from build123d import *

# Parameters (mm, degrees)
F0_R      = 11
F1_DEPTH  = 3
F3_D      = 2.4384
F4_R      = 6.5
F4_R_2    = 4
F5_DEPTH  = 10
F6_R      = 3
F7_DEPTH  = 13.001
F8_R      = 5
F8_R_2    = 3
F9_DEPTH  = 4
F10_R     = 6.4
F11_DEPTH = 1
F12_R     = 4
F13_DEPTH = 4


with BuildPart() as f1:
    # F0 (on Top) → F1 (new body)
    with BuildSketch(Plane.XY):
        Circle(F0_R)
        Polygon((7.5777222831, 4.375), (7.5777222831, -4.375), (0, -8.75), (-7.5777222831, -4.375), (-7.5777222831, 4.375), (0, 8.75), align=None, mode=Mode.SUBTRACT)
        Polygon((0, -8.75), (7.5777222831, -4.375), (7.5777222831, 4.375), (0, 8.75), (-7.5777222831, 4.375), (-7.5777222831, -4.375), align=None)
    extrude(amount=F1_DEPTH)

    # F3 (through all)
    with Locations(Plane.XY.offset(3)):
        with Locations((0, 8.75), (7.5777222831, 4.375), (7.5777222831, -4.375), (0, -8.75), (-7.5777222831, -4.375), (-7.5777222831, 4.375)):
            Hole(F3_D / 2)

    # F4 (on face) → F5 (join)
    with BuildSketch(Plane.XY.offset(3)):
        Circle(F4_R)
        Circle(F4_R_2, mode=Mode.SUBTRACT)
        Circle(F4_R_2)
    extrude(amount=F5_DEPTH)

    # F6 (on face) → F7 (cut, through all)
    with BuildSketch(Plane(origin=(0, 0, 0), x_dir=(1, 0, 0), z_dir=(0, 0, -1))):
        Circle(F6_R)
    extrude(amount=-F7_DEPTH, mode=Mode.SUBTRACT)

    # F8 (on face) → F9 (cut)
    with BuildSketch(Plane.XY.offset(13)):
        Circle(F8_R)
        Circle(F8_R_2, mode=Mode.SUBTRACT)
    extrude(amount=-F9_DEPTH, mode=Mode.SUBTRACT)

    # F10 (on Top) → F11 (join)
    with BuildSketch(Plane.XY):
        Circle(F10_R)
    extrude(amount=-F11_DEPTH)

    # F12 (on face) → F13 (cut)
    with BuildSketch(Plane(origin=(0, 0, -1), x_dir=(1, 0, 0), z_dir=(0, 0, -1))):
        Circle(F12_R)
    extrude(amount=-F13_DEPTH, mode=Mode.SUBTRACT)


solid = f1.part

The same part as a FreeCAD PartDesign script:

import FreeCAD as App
import Part
import Sketcher
from FreeCAD import Vector

doc = App.newDocument("Part")
params = doc.addObject("Spreadsheet::Sheet", "Params")
for row, (alias, value) in enumerate([
    ("sketch1_diameter", "22 mm"),
    ("pad1_length", "3 mm"),
    ("hole_diameter", "2.4384 mm"),
    ("sketch3_diameter", "13 mm"),
    ("pad2_length", "10 mm"),
    ("sketch4_diameter", "6 mm"),
    ("sketch5_diameter", "10 mm"),
    ("sketch5_diameter2", "6 mm"),
    ("pocket2_length", "4 mm"),
    ("sketch6_diameter", "12.8 mm"),
    ("pad3_length", "1 mm"),
    ("sketch7_diameter", "8 mm"),
    ("pocket3_length", "4 mm"),
], start=1):
    params.set(f"A{row}", alias)
    params.set(f"B{row}", "=" + value)
    params.setAlias(f"B{row}", alias)

body = doc.addObject("PartDesign::Body", "Body")

# Sketch on XY plane
sketch1 = body.newObject("Sketcher::SketchObject", "Sketch")
sketch1.AttachmentSupport = (doc.getObject("XY_Plane"), [""])
sketch1.MapMode = "FlatFace"
sketch1.addGeometry(Part.Circle(Vector(0, 0, 0), Vector(0, 0, 1), 11), False)
sketch1.addConstraint([
    Sketcher.Constraint("Coincident", 0, 3, -1, 1),
    Sketcher.Constraint("Diameter", 0, 22.0),
])
sketch1.setExpression("Constraints[1]", "Params.sketch1_diameter")
pad1 = body.newObject("PartDesign::Pad", "Pad")
pad1.Profile = sketch1
pad1.setExpression("Length", "Params.pad1_length")

# Sketch on XY plane
sketch2 = body.newObject("Sketcher::SketchObject", "Sketch001")
sketch2.AttachmentSupport = (doc.getObject("XY_Plane"), [""])
sketch2.MapMode = "FlatFace"
sketch2.AttachmentOffset = App.Placement(Vector(0, 0, 3), App.Rotation())
sketch2.addGeometry([
    Part.Circle(Vector(0, 8.75, 0), Vector(0, 0, 1), 1.2192),  # 0
    Part.Circle(Vector(7.577722, 4.375, 0), Vector(0, 0, 1), 1.2192),  # 1
    Part.Circle(Vector(7.577722, -4.375, 0), Vector(0, 0, 1), 1.2192),  # 2
    Part.Circle(Vector(0, -8.75, 0), Vector(0, 0, 1), 1.2192),  # 3
    Part.Circle(Vector(-7.577722, -4.375, 0), Vector(0, 0, 1), 1.2192),  # 4
    Part.Circle(Vector(-7.577722, 4.375, 0), Vector(0, 0, 1), 1.2192),  # 5
], False)
sketch2.addConstraint([
    Sketcher.Constraint("Equal", 0, 1),
    Sketcher.Constraint("Equal", 1, 2),
    Sketcher.Constraint("Equal", 2, 3),
    Sketcher.Constraint("Equal", 3, 4),
    Sketcher.Constraint("Equal", 4, 5),
    Sketcher.Constraint("Symmetric", 0, 3, 3, 3, -1, 1),
    Sketcher.Constraint("Symmetric", 1, 3, 4, 3, -1, 1),
    Sketcher.Constraint("Symmetric", 2, 3, 5, 3, -1, 1),
    Sketcher.Constraint("Symmetric", 2, 3, 4, 3, -2),
    Sketcher.Constraint("PointOnObject", 0, 3, -2),
    Sketcher.Constraint("Diameter", 0, 2.4384),
    Sketcher.Constraint("DistanceY", 3, 3, 0, 3, 17.5),
    Sketcher.Constraint("DistanceY", 2, 3, 1, 3, 8.75),
    Sketcher.Constraint("DistanceX", -1, 1, 1, 3, 7.577722),
])
doc.recompute()
hole = body.newObject("PartDesign::Hole", "Hole")
hole.Profile = sketch2
hole.ThreadType = "None"
hole.setExpression("Diameter", "Params.hole_diameter")
hole.DepthType = "ThroughAll"

# Sketch on XY plane
sketch3 = body.newObject("Sketcher::SketchObject", "Sketch002")
sketch3.AttachmentSupport = (doc.getObject("XY_Plane"), [""])
sketch3.MapMode = "FlatFace"
sketch3.AttachmentOffset = App.Placement(Vector(0, 0, 3), App.Rotation())
sketch3.addGeometry(Part.Circle(Vector(0, 0, 0), Vector(0, 0, 1), 6.5), False)
sketch3.addConstraint([
    Sketcher.Constraint("Coincident", 0, 3, -1, 1),
    Sketcher.Constraint("Diameter", 0, 13.0),
])
sketch3.setExpression("Constraints[1]", "Params.sketch3_diameter")
pad2 = body.newObject("PartDesign::Pad", "Pad001")
pad2.Profile = sketch3
pad2.setExpression("Length", "Params.pad2_length")

# Sketch on XY plane
sketch4 = body.newObject("Sketcher::SketchObject", "Sketch003")
sketch4.AttachmentSupport = (doc.getObject("XY_Plane"), [""])
sketch4.MapMode = "FlatFace"
sketch4.addGeometry(Part.Circle(Vector(0, 0, 0), Vector(0, 0, 1), 3), False)
sketch4.addConstraint([
    Sketcher.Constraint("Coincident", 0, 3, -1, 1),
    Sketcher.Constraint("Diameter", 0, 6.0),
])
sketch4.setExpression("Constraints[1]", "Params.sketch4_diameter")
pocket1 = body.newObject("PartDesign::Pocket", "Pocket")
pocket1.Profile = sketch4
pocket1.Type = "ThroughAll"
pocket1.Reversed = True

# Sketch on XY plane
sketch5 = body.newObject("Sketcher::SketchObject", "Sketch004")
sketch5.AttachmentSupport = (doc.getObject("XY_Plane"), [""])
sketch5.MapMode = "FlatFace"
sketch5.AttachmentOffset = App.Placement(Vector(0, 0, 13), App.Rotation())
sketch5.addGeometry([
    Part.Circle(Vector(0, 0, 0), Vector(0, 0, 1), 5),
    Part.Circle(Vector(0, 0, 0), Vector(0, 0, 1), 3),
], False)
sketch5.addConstraint([
    Sketcher.Constraint("Coincident", 0, 3, -1, 1),
    Sketcher.Constraint("Coincident", 1, 3, -1, 1),
    Sketcher.Constraint("Diameter", 0, 10.0),
    Sketcher.Constraint("Diameter", 1, 6.0),
])
sketch5.setExpression("Constraints[2]", "Params.sketch5_diameter")
sketch5.setExpression("Constraints[3]", "Params.sketch5_diameter2")
pocket2 = body.newObject("PartDesign::Pocket", "Pocket001")
pocket2.Profile = sketch5
pocket2.setExpression("Length", "Params.pocket2_length")

# Sketch on XY plane
sketch6 = body.newObject("Sketcher::SketchObject", "Sketch005")
sketch6.AttachmentSupport = (doc.getObject("XY_Plane"), [""])
sketch6.MapMode = "FlatFace"
sketch6.addGeometry(Part.Circle(Vector(0, 0, 0), Vector(0, 0, 1), 6.4), False)
sketch6.addConstraint([
    Sketcher.Constraint("Coincident", 0, 3, -1, 1),
    Sketcher.Constraint("Diameter", 0, 12.8),
])
sketch6.setExpression("Constraints[1]", "Params.sketch6_diameter")
pad3 = body.newObject("PartDesign::Pad", "Pad002")
pad3.Profile = sketch6
pad3.setExpression("Length", "Params.pad3_length")
pad3.Reversed = True

# Sketch on XY plane
sketch7 = body.newObject("Sketcher::SketchObject", "Sketch006")
sketch7.AttachmentSupport = (doc.getObject("XY_Plane"), [""])
sketch7.MapMode = "FlatFace"
sketch7.AttachmentOffset = App.Placement(Vector(0, 0, -1), App.Rotation())
sketch7.addGeometry(Part.Circle(Vector(0, 0, 0), Vector(0, 0, 1), 4), False)
sketch7.addConstraint([
    Sketcher.Constraint("Coincident", 0, 3, -1, 1),
    Sketcher.Constraint("Diameter", 0, 8.0),
])
sketch7.setExpression("Constraints[1]", "Params.sketch7_diameter")
pocket3 = body.newObject("PartDesign::Pocket", "Pocket002")
pocket3.Profile = sketch7
pocket3.setExpression("Length", "Params.pocket3_length")
pocket3.Reversed = True

doc.recompute()
